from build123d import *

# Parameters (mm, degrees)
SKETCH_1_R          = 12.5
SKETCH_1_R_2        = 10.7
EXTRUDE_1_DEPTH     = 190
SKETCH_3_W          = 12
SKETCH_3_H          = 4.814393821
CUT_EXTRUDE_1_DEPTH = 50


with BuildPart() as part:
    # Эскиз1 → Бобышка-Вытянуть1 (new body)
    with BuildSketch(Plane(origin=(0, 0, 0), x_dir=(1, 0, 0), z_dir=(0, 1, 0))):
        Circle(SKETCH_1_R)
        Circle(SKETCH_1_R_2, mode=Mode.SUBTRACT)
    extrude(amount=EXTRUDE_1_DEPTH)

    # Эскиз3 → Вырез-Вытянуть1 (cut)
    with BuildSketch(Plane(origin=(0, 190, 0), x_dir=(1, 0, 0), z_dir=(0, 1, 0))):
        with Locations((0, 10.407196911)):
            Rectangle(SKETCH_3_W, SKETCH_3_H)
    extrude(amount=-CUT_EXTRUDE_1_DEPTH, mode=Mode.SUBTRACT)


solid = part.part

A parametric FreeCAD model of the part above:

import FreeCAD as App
import Part
import Sketcher

V = App.Vector
Q = App.Units.Quantity

doc = App.newDocument("Part")
body = doc.addObject("PartDesign::Body", "Body")

sketch1 = body.newObject("Sketcher::SketchObject", "Sketch")
sketch1.AttachmentSupport = (doc.getObject("XZ_Plane"), [""])
sketch1.MapMode = "FlatFace"
sketch1.addGeometry([
    Part.Circle(V(0, 0, 0), V(0, 0, 1), 12.5),
    Part.Circle(V(0, 0, 0), V(0, 0, 1), 10.7),
], False)
sketch1.addConstraint([
    Sketcher.Constraint("Coincident", 0, 3, -1, 1),
    Sketcher.Constraint("Coincident", 1, 3, -1, 1),
    Sketcher.Constraint("Diameter", 0, Q("25 mm")),
    Sketcher.Constraint("Diameter", 1, Q("21.4 mm")),
])
pad1 = body.newObject("PartDesign::Pad", "Pad")
pad1.Profile = sketch1
pad1.Length = 190
pad1.Reversed = True

sketch2 = body.newObject("Sketcher::SketchObject", "Sketch001")
sketch2.AttachmentSupport = (doc.getObject("XZ_Plane"), [""])
sketch2.MapMode = "FlatFace"
sketch2.AttachmentOffset = App.Placement(V(0, 0, -190), App.Rotation())
sketch2.addGeometry([
    Part.LineSegment(V(-6, -12.814394, 0), V(-6, -8, 0)),
    Part.LineSegment(V(-6, -8, 0), V(6, -8, 0)),
    Part.LineSegment(V(6, -8, 0), V(6, -12.814394, 0)),
    Part.LineSegment(V(6, -12.814394, 0), V(-6, -12.814394, 0)),
], False)
sketch2.addConstraint([
    Sketcher.Constraint("Coincident", 0, 2, 1, 1),
    Sketcher.Constraint("Coincident", 1, 2, 2, 1),
    Sketcher.Constraint("Coincident", 2, 2, 3, 1),
    Sketcher.Constraint("Coincident", 3, 2, 0, 1),
    Sketcher.Constraint("Vertical", 0),
    Sketcher.Constraint("Horizontal", 1),
    Sketcher.Constraint("Vertical", 2),
    Sketcher.Constraint("Horizontal", 3),
    Sketcher.Constraint("DistanceX", 1, 1, 1, 2, Q("12 mm")),
    Sketcher.Constraint("DistanceX", 0, 2, -1, 1, Q("6 mm")),
    Sketcher.Constraint("DistanceY", 0, 2, -1, 1, Q("8 mm")),
    Sketcher.Constraint("DistanceY", 0, 1, 0, 2, Q("4.814394 mm")),
])
pocket1 = body.newObject("PartDesign::Pocket", "Pocket")
pocket1.Profile = sketch2
pocket1.Length = 50
pocket1.Reversed = True

doc.recompute()
